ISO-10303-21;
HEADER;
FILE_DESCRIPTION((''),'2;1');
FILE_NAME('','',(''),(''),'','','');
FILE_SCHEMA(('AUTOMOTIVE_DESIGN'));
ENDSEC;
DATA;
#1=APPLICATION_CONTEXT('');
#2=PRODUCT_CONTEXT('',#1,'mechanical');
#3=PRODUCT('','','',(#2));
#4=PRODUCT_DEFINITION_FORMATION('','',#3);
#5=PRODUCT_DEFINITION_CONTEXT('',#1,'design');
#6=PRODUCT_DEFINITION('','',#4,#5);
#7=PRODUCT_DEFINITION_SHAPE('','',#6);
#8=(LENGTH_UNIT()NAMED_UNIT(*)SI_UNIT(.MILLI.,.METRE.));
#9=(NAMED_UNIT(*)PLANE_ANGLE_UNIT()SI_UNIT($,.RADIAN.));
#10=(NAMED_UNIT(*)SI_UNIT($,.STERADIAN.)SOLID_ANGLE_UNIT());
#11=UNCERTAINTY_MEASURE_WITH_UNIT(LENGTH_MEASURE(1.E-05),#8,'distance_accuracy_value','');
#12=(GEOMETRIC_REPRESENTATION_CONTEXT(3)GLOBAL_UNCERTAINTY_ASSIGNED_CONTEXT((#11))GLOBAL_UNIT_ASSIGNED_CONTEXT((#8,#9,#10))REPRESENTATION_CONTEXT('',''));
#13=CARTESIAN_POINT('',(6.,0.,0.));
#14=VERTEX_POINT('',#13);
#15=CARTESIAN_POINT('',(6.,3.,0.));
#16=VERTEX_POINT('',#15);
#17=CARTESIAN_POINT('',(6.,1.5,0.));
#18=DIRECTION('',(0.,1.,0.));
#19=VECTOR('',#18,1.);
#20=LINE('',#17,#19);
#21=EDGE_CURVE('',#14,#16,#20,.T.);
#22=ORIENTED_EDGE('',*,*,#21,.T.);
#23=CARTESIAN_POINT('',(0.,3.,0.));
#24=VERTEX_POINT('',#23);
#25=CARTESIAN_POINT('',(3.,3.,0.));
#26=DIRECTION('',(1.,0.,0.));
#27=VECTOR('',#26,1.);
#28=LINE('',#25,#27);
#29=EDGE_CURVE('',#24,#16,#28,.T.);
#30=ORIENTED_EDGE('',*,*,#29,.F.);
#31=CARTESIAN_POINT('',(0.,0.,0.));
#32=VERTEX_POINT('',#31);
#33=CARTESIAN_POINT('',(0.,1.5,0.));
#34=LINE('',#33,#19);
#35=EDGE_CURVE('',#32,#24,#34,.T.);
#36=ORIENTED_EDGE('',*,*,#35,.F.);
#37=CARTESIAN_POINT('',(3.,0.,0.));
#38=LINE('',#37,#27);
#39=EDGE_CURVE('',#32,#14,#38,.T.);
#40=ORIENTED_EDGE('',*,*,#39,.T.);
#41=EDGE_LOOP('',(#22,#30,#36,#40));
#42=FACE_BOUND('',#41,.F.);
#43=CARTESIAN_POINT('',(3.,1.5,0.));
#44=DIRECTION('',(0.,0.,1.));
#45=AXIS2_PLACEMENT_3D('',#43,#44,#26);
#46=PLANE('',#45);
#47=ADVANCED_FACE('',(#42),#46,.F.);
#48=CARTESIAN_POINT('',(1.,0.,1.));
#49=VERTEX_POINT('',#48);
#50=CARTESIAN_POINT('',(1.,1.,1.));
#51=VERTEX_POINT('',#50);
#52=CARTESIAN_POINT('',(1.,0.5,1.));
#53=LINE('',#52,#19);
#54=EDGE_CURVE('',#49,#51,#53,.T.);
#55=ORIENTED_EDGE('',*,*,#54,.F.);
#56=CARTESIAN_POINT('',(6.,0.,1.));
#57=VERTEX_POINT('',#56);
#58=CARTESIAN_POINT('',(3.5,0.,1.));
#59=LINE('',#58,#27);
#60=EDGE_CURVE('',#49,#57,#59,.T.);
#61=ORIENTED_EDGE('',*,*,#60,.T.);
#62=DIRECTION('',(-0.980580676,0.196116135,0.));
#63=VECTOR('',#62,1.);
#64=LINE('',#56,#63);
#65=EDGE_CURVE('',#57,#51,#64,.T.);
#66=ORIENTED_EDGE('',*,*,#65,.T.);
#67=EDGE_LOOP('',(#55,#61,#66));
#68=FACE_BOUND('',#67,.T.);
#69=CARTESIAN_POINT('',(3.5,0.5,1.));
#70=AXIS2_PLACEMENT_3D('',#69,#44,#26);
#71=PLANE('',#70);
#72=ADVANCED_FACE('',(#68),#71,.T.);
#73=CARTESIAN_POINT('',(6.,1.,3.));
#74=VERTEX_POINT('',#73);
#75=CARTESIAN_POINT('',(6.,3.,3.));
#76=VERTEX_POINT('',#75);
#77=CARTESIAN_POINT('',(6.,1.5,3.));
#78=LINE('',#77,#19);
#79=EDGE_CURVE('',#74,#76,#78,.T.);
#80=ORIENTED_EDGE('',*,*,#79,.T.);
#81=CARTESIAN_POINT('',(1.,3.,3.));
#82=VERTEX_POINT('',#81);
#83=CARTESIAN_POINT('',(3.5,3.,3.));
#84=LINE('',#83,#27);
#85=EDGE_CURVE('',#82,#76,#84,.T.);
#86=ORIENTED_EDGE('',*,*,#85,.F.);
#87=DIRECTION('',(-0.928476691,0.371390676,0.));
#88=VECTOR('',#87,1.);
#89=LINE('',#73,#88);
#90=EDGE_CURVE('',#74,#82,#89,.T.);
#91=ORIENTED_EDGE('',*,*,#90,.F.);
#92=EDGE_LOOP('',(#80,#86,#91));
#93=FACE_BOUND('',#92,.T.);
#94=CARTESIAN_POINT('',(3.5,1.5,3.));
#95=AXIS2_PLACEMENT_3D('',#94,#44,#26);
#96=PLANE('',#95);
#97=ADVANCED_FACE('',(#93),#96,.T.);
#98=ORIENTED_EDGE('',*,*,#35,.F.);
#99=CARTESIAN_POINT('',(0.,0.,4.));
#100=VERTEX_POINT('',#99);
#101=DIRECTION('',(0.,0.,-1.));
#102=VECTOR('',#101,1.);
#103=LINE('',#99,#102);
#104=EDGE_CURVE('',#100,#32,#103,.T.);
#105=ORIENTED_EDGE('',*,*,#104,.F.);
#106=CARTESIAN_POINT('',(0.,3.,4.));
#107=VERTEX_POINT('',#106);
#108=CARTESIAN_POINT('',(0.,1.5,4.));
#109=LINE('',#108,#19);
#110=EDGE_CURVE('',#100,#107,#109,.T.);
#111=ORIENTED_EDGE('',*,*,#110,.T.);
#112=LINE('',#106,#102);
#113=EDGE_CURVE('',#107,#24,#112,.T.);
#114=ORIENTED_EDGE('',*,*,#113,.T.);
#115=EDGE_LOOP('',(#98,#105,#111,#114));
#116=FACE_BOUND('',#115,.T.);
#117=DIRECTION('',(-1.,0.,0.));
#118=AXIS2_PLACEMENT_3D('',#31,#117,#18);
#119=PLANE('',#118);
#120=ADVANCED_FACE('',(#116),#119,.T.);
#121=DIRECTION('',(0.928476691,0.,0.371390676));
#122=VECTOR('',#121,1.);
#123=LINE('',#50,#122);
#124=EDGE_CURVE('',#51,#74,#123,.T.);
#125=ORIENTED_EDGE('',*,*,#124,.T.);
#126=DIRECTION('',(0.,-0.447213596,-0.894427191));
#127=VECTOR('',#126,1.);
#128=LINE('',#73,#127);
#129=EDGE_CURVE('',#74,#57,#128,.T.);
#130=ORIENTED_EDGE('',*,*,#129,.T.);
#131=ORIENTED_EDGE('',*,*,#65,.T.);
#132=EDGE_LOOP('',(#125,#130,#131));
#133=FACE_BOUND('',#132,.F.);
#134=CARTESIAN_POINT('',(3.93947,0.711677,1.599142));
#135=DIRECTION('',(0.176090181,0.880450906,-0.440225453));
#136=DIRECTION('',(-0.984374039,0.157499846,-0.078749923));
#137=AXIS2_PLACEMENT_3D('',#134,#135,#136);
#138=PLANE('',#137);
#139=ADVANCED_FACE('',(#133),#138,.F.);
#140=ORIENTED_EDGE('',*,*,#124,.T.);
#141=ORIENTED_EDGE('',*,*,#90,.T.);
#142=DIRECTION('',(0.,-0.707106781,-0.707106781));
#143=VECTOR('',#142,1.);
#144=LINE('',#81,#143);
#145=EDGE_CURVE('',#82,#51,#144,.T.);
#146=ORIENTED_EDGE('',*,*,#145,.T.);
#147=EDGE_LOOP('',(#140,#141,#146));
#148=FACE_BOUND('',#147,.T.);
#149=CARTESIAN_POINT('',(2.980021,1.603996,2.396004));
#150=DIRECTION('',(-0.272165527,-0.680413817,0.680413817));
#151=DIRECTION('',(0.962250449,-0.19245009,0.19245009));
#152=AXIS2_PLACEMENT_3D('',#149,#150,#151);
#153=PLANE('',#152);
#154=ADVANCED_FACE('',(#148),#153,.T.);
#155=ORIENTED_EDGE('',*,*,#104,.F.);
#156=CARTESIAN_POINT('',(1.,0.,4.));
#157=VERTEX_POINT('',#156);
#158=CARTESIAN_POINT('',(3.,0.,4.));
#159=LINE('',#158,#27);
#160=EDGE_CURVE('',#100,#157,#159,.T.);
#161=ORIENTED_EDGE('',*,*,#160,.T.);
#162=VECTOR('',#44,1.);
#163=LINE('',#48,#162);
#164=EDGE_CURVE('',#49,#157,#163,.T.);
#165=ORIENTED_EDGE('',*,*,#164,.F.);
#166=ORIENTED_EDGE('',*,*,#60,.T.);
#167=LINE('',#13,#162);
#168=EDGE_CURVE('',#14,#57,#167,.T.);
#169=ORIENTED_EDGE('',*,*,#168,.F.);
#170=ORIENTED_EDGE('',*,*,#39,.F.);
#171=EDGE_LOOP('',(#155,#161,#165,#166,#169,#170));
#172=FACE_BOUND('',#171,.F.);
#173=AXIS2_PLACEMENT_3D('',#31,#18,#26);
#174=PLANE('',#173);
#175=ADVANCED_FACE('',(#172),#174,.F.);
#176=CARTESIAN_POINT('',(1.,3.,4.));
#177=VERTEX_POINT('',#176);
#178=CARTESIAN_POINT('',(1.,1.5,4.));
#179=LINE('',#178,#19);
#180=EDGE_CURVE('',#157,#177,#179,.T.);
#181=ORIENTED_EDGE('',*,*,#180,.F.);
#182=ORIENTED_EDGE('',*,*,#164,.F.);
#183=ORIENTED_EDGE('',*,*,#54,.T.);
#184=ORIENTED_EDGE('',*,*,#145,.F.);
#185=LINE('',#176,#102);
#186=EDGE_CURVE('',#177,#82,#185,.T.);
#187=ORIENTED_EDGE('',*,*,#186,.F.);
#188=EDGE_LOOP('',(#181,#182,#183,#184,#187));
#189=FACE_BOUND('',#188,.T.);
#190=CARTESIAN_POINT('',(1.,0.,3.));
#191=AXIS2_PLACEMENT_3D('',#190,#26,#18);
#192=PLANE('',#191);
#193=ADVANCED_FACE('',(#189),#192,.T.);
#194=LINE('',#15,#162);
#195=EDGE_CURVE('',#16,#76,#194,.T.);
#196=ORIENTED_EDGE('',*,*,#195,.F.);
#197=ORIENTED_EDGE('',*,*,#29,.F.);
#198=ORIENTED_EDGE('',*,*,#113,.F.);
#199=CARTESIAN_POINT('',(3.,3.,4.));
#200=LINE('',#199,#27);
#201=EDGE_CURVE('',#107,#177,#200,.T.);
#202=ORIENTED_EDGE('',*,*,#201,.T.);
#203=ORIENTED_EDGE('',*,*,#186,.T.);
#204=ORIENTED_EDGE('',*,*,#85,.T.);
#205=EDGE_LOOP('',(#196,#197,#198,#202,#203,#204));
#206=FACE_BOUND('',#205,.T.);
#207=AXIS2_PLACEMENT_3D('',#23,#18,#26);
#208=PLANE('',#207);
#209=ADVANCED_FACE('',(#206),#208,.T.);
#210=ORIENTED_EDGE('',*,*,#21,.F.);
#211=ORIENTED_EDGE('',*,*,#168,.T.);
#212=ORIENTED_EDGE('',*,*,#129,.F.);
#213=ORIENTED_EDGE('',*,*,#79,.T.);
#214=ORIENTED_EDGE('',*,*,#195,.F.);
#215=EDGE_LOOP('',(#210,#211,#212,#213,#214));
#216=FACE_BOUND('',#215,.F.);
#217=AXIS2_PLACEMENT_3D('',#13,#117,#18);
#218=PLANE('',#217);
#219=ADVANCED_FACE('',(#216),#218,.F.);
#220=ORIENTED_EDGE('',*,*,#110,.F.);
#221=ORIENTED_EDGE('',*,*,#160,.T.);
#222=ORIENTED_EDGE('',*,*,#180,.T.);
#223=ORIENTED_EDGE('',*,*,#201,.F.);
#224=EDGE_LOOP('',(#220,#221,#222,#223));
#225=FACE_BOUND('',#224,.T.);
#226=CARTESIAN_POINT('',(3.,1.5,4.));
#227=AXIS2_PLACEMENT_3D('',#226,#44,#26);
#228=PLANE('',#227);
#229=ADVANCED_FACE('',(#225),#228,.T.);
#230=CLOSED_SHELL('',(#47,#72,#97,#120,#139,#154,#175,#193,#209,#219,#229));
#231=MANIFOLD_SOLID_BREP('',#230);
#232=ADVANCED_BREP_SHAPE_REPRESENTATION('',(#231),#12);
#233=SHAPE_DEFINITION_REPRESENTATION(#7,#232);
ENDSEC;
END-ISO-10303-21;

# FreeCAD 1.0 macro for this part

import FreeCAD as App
import Part
import Sketcher

V = App.Vector


def add_polygon(sketch, points):
    """Adds a closed chain of lines whose ends are joined by coincident constraints."""
    first, n = sketch.GeometryCount, len(points)
    for a, b in zip(points, points[1:] + points[:1]):
        sketch.addGeometry(Part.LineSegment(App.Vector(*a, 0), App.Vector(*b, 0)), False)
    for i in range(n):
        sketch.addConstraint(Sketcher.Constraint("Coincident", first + i, 2, first + (i + 1) % n, 1))

doc = App.newDocument("Part")
params = doc.addObject("Spreadsheet::Sheet", "Params")
for row, (alias, value) in enumerate([
    ("sketch1_width", "6 mm"),
    ("sketch1_height", "3 mm"),
    ("pad1_length", "4 mm"),
    ("sketch2_width", "5 mm"),
    ("sketch2_height", "3 mm"),
    ("pocket1_length", "1 mm"),
    ("sketch3_width", "5 mm"),
    ("sketch3_height", "1 mm"),
    ("pocket2_length", "2 mm"),
    ("pad2_length", "1 mm"),
    ("sketch5_width", "3 mm"),
    ("pocket3_length", "25 mm"),
    ("pocket4_length", "1 mm"),
    ("sketch7_width", "3 mm"),
    ("pad3_length", "1 mm"),
    ("pocket5_length", "1.4 mm"),
], start=1):
    params.set(f"A{row}", alias)
    params.set(f"B{row}", "=" + value)
    params.setAlias(f"B{row}", alias)

body = doc.addObject("PartDesign::Body", "Body")

# Sketch on XY plane
sketch1 = body.newObject("Sketcher::SketchObject", "Sketch")
sketch1.AttachmentSupport = (doc.getObject("XY_Plane"), [""])
sketch1.MapMode = "FlatFace"
add_polygon(sketch1, [(0, 3), (0, 0), (6, 0), (6, 3)])  # lines 0-3
sketch1.addConstraint([
    Sketcher.Constraint("Vertical", 0),
    Sketcher.Constraint("Horizontal", 1),
    Sketcher.Constraint("Vertical", 2),
    Sketcher.Constraint("Horizontal", 3),
    Sketcher.Constraint("Coincident", 0, 2, -1, 1),
    Sketcher.Constraint("DistanceX", 1, 1, 1, 2, 6.0),
    Sketcher.Constraint("DistanceY", 0, 2, 0, 1, 3.0),
])
sketch1.setExpression("Constraints[9]", "Params.sketch1_width")
sketch1.setExpression("Constraints[10]", "Params.sketch1_height")
pad1 = body.newObject("PartDesign::Pad", "Pad")
pad1.Profile = sketch1
pad1.setExpression("Length", "Params.pad1_length")

# Sketch on XY plane
sketch2 = body.newObject("Sketcher::SketchObject", "Sketch001")
sketch2.AttachmentSupport = (doc.getObject("XY_Plane"), [""])
sketch2.MapMode = "FlatFace"
sketch2.AttachmentOffset = App.Placement(V(0, 0, 4), App.Rotation())
add_polygon(sketch2, [(1, 3), (1, 0), (6, 0), (6, 3)])  # lines 0-3
sketch2.addConstraint([
    Sketcher.Constraint("Vertical", 0),
    Sketcher.Constraint("Horizontal", 1),
    Sketcher.Constraint("Vertical", 2),
    Sketcher.Constraint("Horizontal", 3),
    Sketcher.Constraint("PointOnObject", 0, 2, -1),
    Sketcher.Constraint("DistanceX", 1, 1, 1, 2, 5.0),
    Sketcher.Constraint("DistanceY", 0, 2, 0, 1, 3.0),
    Sketcher.Constraint("DistanceX", -1, 1, 0, 2, 1.0),
])
sketch2.setExpression("Constraints[9]", "Params.sketch2_width")
sketch2.setExpression("Constraints[10]", "Params.sketch2_height")
pocket1 = body.newObject("PartDesign::Pocket", "Pocket")
pocket1.Profile = sketch2
pocket1.setExpression("Length", "Params.pocket1_length")

# Sketch on XY plane
sketch3 = body.newObject("Sketcher::SketchObject", "Sketch002")
sketch3.AttachmentSupport = (doc.getObject("XY_Plane"), [""])
sketch3.MapMode = "FlatFace"
sketch3.AttachmentOffset = App.Placement(V(0, 0, 3), App.Rotation())
add_polygon(sketch3, [(1, 1), (1, 0), (6, 0), (6, 1)])  # lines 0-3
sketch3.addConstraint([
    Sketcher.Constraint("Vertical", 0),
    Sketcher.Constraint("Horizontal", 1),
    Sketcher.Constraint("Vertical", 2),
    Sketcher.Constraint("Horizontal", 3),
    Sketcher.Constraint("PointOnObject", 0, 2, -1),
    Sketcher.Constraint("DistanceX", 1, 1, 1, 2, 5.0),
    Sketcher.Constraint("DistanceY", 0, 2, 0, 1, 1.0),
    Sketcher.Constraint("DistanceX", -1, 1, 0, 2, 1.0),
])
sketch3.setExpression("Constraints[9]", "Params.sketch3_width")
sketch3.setExpression("Constraints[10]", "Params.sketch3_height")
pocket2 = body.newObject("PartDesign::Pocket", "Pocket001")
pocket2.Profile = sketch3
pocket2.setExpression("Length", "Params.pocket2_length")

# Sketch on an angled plane
sketch4 = body.newObject("Sketcher::SketchObject", "Sketch003")
sketch4.Placement = App.Placement(V(0.108527, 0.542636, -0.271318), App.Rotation(V(-0.984374039, 0.157499846, -0.078749923), V(0, 0.447213595, 0.894427191), V(0.176090181, 0.880450906, -0.440225453), "ZXY"))
add_polygon(sketch4, [(-6, 0.9), (-0.9, 1.3), (-6, 3.1)])  # lines 0-2
sketch4.addConstraint([
    Sketcher.Constraint("Vertical", 2),
    Sketcher.Constraint("Distance", 0, 5.09902),
    Sketcher.Constraint("DistanceY", 2, 2, 2, 1, 2.236068),
    Sketcher.Constraint("DistanceY", -1, 1, 0, 2, 1.341641),
    Sketcher.Constraint("DistanceX", 1, 2, 0, 2, 5.07937),
    Sketcher.Constraint("DistanceX", 0, 2, -1, 1, 0.905624),
])
pad2 = body.newObject("PartDesign::Pad", "Pad001")
pad2.Profile = sketch4
pad2.setExpression("Length", "Params.pad2_length")

# Sketch on YZ plane
sketch5 = body.newObject("Sketcher::SketchObject", "Sketch004")
sketch5.AttachmentSupport = (doc.getObject("YZ_Plane"), [""])
sketch5.MapMode = "FlatFace"
sketch5.AttachmentOffset = App.Placement(V(0, 0, 6), App.Rotation())
add_polygon(sketch5, [(0, 3), (0, 0), (3, 0), (3, 3)])  # lines 0-3
sketch5.addConstraint([
    Sketcher.Constraint("Vertical", 0),
    Sketcher.Constraint("Horizontal", 1),
    Sketcher.Constraint("Vertical", 2),
    Sketcher.Constraint("Horizontal", 3),
    Sketcher.Constraint("Coincident", 0, 2, -1, 1),
    Sketcher.Constraint("Equal", 3, 0),
    Sketcher.Constraint("DistanceX", 1, 1, 1, 2, 3.0),
])
sketch5.setExpression("Constraints[10]", "Params.sketch5_width")
pocket3 = body.newObject("PartDesign::Pocket", "Pocket002")
pocket3.Profile = sketch5
pocket3.setExpression("Length", "Params.pocket3_length")
pocket3.Reversed = True

# Sketch on an angled plane
sketch6 = body.newObject("Sketcher::SketchObject", "Sketch005")
sketch6.Placement = App.Placement(V(0.074074, 0.185185, -0.185185), App.Rotation(V(0.962250449, -0.19245009, 0.19245009), V(0, 0.707106781, 0.707106781), V(-0.272165527, -0.680413817, 0.680413817), "ZXY"))
add_polygon(sketch6, [(6.2, 2.8), (1, 4.2), (1, 1.4)])  # lines 0-2
sketch6.addConstraint([
    Sketcher.Constraint("Vertical", 1),
    Sketcher.Constraint("Equal", 0, 2),
    Sketcher.Constraint("DistanceY", 1, 2, 1, 1, 2.828427),
    Sketcher.Constraint("DistanceX", -1, 1, 0, 2, 0.96225),
    Sketcher.Constraint("DistanceY", -1, 1, 0, 2, 4.242641),
    Sketcher.Constraint("Distance", 0, 5.385165),
])
pocket4 = body.newObject("PartDesign::Pocket", "Pocket003")
pocket4.Profile = sketch6
pocket4.setExpression("Length", "Params.pocket4_length")
pocket4.Reversed = True

# Sketch on YZ plane
sketch7 = body.newObject("Sketcher::SketchObject", "Sketch006")
sketch7.AttachmentSupport = (doc.getObject("YZ_Plane"), [""])
sketch7.MapMode = "FlatFace"
sketch7.AttachmentOffset = App.Placement(V(0, 0, 1), App.Rotation())
add_polygon(sketch7, [(0, 4), (0, 1), (3, 1), (3, 4)])  # lines 0-3
sketch7.addConstraint([
    Sketcher.Constraint("Vertical", 0),
    Sketcher.Constraint("Horizontal", 1),
    Sketcher.Constraint("Vertical", 2),
    Sketcher.Constraint("Horizontal", 3),
    Sketcher.Constraint("PointOnObject", 0, 2, -2),
    Sketcher.Constraint("Equal", 3, 0),
    Sketcher.Constraint("DistanceX", 1, 1, 1, 2, 3.0),
    Sketcher.Constraint("DistanceY", -1, 1, 0, 2, 1.0),
])
sketch7.setExpression("Constraints[10]", "Params.sketch7_width")
pad3 = body.newObject("PartDesign::Pad", "Pad002")
pad3.Profile = sketch7
pad3.setExpression("Length", "Params.pad3_length")
pad3.Reversed = True

# Sketch on YZ plane
sketch8 = body.newObject("Sketcher::SketchObject", "Sketch007")
sketch8.AttachmentSupport = (doc.getObject("YZ_Plane"), [""])
sketch8.MapMode = "FlatFace"
sketch8.AttachmentOffset = App.Placement(V(0, 0, 1), App.Rotation())
add_polygon(sketch8, [(1, 3), (1, 2.5), (1.5, 2.5), (1.5, 3)])  # lines 0-3
sketch8.addConstraint([
    Sketcher.Constraint("Vertical", 0),
    Sketcher.Constraint("Horizontal", 1),
    Sketcher.Constraint("Vertical", 2),
    Sketcher.Constraint("Horizontal", 3),
    Sketcher.Constraint("Equal", 3, 0),
    Sketcher.Constraint("DistanceX", -1, 1, 0, 2, 1.0),
    Sketcher.Constraint("DistanceY", -1, 1, 2, 2, 3.0),
    Sketcher.Constraint("DistanceX", 1, 1, 1, 2, 0.530306),
])
pocket5 = body.newObject("PartDesign::Pocket", "Pocket004")
pocket5.Profile = sketch8
pocket5.setExpression("Length", "Params.pocket5_length")
pocket5.Reversed = True

doc.recompute()
